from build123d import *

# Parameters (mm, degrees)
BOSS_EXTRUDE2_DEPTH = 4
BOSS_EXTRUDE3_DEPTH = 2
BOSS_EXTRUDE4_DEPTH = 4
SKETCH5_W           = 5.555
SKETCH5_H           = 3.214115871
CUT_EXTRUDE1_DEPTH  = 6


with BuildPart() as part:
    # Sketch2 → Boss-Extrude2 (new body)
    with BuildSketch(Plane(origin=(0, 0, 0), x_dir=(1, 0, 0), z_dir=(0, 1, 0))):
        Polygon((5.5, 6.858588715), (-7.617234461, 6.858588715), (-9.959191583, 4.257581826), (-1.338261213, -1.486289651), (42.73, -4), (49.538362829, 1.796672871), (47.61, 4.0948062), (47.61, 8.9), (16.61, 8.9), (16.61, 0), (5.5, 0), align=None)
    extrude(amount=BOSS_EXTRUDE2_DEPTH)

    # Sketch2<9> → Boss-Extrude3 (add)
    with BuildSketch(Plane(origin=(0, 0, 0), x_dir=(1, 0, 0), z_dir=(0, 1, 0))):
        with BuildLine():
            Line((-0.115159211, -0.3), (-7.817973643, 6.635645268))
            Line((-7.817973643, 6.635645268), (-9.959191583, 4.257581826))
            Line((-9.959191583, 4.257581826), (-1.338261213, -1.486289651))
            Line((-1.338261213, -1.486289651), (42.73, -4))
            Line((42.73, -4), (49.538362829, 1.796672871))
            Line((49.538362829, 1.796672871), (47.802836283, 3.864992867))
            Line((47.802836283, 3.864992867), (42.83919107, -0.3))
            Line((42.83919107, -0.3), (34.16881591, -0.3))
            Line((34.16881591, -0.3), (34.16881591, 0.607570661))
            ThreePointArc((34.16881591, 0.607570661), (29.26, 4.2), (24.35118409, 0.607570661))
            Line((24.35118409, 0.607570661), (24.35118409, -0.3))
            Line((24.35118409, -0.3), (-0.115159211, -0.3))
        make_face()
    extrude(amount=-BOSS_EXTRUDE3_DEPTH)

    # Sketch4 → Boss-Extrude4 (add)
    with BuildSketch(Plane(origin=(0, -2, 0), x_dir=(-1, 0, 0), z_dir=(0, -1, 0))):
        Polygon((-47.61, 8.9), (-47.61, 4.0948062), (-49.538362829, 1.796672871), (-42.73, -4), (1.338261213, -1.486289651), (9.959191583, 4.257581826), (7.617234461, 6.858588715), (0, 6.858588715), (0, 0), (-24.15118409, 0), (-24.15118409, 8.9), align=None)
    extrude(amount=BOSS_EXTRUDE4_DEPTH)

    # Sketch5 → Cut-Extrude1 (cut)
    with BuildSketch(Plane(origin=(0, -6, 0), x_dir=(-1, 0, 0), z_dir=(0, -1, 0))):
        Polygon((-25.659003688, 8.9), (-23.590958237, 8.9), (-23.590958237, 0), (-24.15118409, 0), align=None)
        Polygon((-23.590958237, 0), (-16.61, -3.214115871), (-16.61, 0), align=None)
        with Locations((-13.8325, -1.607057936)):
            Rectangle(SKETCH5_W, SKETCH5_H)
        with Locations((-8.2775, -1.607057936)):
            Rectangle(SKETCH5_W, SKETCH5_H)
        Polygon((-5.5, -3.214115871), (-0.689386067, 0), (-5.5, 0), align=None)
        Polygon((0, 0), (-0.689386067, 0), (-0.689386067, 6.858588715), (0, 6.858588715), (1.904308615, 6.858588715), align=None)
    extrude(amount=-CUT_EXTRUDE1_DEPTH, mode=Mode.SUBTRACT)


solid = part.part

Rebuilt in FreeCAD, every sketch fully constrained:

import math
import FreeCAD as App
import Part
import Sketcher

V = App.Vector
Q = App.Units.Quantity

doc = App.newDocument("Part")
body = doc.addObject("PartDesign::Body", "Body")

# Sketch on XZ plane
sketch1 = body.newObject("Sketcher::SketchObject", "Sketch")
sketch1.AttachmentSupport = (doc.getObject("XZ_Plane"), [""])
sketch1.MapMode = "FlatFace"
sketch1.addGeometry(Part.LineSegment(V(5.5, -6.9, 0), V(-7.6, -6.9, 0)), False)
sketch1.addGeometry(Part.LineSegment(V(-7.6, -6.9, 0), V(-10, -4.3, 0)), False)
sketch1.addGeometry(Part.LineSegment(V(-10, -4.3, 0), V(-1.3, 1.5, 0)), False)
sketch1.addGeometry(Part.LineSegment(V(-1.3, 1.5, 0), V(42.7, 4, 0)), False)
sketch1.addGeometry(Part.LineSegment(V(42.7, 4, 0), V(49.5, -1.8, 0)), False)
sketch1.addGeometry(Part.LineSegment(V(49.5, -1.8, 0), V(47.6, -4.1, 0)), False)
sketch1.addGeometry(Part.LineSegment(V(47.6, -4.1, 0), V(47.6, -8.9, 0)), False)
sketch1.addGeometry(Part.LineSegment(V(47.6, -8.9, 0), V(16.6, -8.9, 0)), False)
sketch1.addGeometry(Part.LineSegment(V(16.6, -8.9, 0), V(16.6, 0, 0)), False)
sketch1.addGeometry(Part.LineSegment(V(16.6, 0, 0), V(5.5, 0, 0)), False)
sketch1.addGeometry(Part.LineSegment(V(5.5, 0, 0), V(5.5, -6.9, 0)), False)
sketch1.addConstraint(Sketcher.Constraint("Coincident", 0, 2, 1, 1))
sketch1.addConstraint(Sketcher.Constraint("Coincident", 1, 2, 2, 1))
sketch1.addConstraint(Sketcher.Constraint("Coincident", 2, 2, 3, 1))
sketch1.addConstraint(Sketcher.Constraint("Coincident", 3, 2, 4, 1))
sketch1.addConstraint(Sketcher.Constraint("Coincident", 4, 2, 5, 1))
sketch1.addConstraint(Sketcher.Constraint("Coincident", 5, 2, 6, 1))
sketch1.addConstraint(Sketcher.Constraint("Coincident", 6, 2, 7, 1))
sketch1.addConstraint(Sketcher.Constraint("Coincident", 7, 2, 8, 1))
sketch1.addConstraint(Sketcher.Constraint("Coincident", 8, 2, 9, 1))
sketch1.addConstraint(Sketcher.Constraint("Coincident", 9, 2, 10, 1))
sketch1.addConstraint(Sketcher.Constraint("Coincident", 10, 2, 0, 1))
sketch1.addConstraint(Sketcher.Constraint("Horizontal", 0))
sketch1.addConstraint(Sketcher.Constraint("Vertical", 6))
sketch1.addConstraint(Sketcher.Constraint("Horizontal", 7))
sketch1.addConstraint(Sketcher.Constraint("Vertical", 8))
sketch1.addConstraint(Sketcher.Constraint("Horizontal", 9))
sketch1.addConstraint(Sketcher.Constraint("Vertical", 10))
sketch1.addConstraint(Sketcher.Constraint("PointOnObject", 8, 2, -1))
sketch1.addConstraint(Sketcher.Constraint("DistanceX", 7, 2, 7, 1, 31.0))
sketch1.addConstraint(Sketcher.Constraint("Angle", 1, Q("132 deg")))
sketch1.addConstraint(Sketcher.Constraint("Angle", 5, Q("-130 deg")))
sketch1.addConstraint(Sketcher.Constraint("Distance", 5, 3.0))
sketch1.addConstraint(Sketcher.Constraint("DistanceY", 8, 1, 8, 2, 8.9))
sketch1.addConstraint(Sketcher.Constraint("DistanceY", -1, 1, 3, 2, 4.0))
sketch1.addConstraint(Sketcher.Constraint("Distance", 1, 3.5))
sketch1.addConstraint(Sketcher.Constraint("DistanceX", 9, 2, 9, 1, 11.11))
sketch1.addConstraint(Sketcher.Constraint("DistanceX", -1, 1, 9, 2, 5.5))
sketch1.addConstraint(Sketcher.Constraint("DistanceX", -1, 1, 3, 2, 42.73))
sketch1.addConstraint(Sketcher.Constraint("DistanceY", 10, 2, 10, 1, 6.858589))
sketch1.addConstraint(Sketcher.Constraint("Distance", 4, 8.941768))
sketch1.addConstraint(Sketcher.Constraint("DistanceX", 0, 2, 0, 1, 13.117234))
sketch1.addConstraint(Sketcher.Constraint("DistanceX", 2, 2, -1, 1, 1.338261))
sketch1.addConstraint(Sketcher.Constraint("DistanceY", -1, 1, 2, 2, 1.48629))
pad1 = body.newObject("PartDesign::Pad", "Pad")
pad1.Profile = sketch1
pad1.Length = 4
pad1.Reversed = True

# Sketch on XZ plane
sketch2 = body.newObject("Sketcher::SketchObject", "Sketch001")
sketch2.AttachmentSupport = (doc.getObject("XZ_Plane"), [""])
sketch2.MapMode = "FlatFace"
sketch2.addGeometry(Part.LineSegment(V(-0.1, 0.3, 0), V(-7.8, -6.6, 0)), False)
sketch2.addGeometry(Part.LineSegment(V(-7.8, -6.6, 0), V(-10, -4.3, 0)), False)
sketch2.addGeometry(Part.LineSegment(V(-10, -4.3, 0), V(-1.3, 1.5, 0)), False)
sketch2.addGeometry(Part.LineSegment(V(-1.3, 1.5, 0), V(42.7, 4, 0)), False)
sketch2.addGeometry(Part.LineSegment(V(42.7, 4, 0), V(49.5, -1.8, 0)), False)
sketch2.addGeometry(Part.LineSegment(V(49.5, -1.8, 0), V(47.8, -3.9, 0)), False)
sketch2.addGeometry(Part.LineSegment(V(47.8, -3.9, 0), V(42.8, 0.3, 0)), False)
sketch2.addGeometry(Part.LineSegment(V(42.8, 0.3, 0), V(34.2, 0.3, 0)), False)
sketch2.addGeometry(Part.LineSegment(V(34.2, 0.3, 0), V(34.2, -0.6, 0)), False)
sketch2.addGeometry(Part.ArcOfCircle(Part.Circle(V(29.3, 0.9, 0), V(0, 0, 1), 5.2), math.radians(-162), math.radians(-18)), False)
sketch2.addGeometry(Part.LineSegment(V(24.4, -0.6, 0), V(24.4, 0.3, 0)), False)
sketch2.addGeometry(Part.LineSegment(V(24.4, 0.3, 0), V(-0.1, 0.3, 0)), False)
sketch2.addConstraint(Sketcher.Constraint("Coincident", 0, 2, 1, 1))
sketch2.addConstraint(Sketcher.Constraint("Coincident", 1, 2, 2, 1))
sketch2.addConstraint(Sketcher.Constraint("Coincident", 2, 2, 3, 1))
sketch2.addConstraint(Sketcher.Constraint("Coincident", 3, 2, 4, 1))
sketch2.addConstraint(Sketcher.Constraint("Coincident", 4, 2, 5, 1))
sketch2.addConstraint(Sketcher.Constraint("Coincident", 5, 2, 6, 1))
sketch2.addConstraint(Sketcher.Constraint("Coincident", 6, 2, 7, 1))
sketch2.addConstraint(Sketcher.Constraint("Coincident", 7, 2, 8, 1))
sketch2.addConstraint(Sketcher.Constraint("Coincident", 8, 2, 9, 2))
sketch2.addConstraint(Sketcher.Constraint("Coincident", 9, 1, 10, 1))
sketch2.addConstraint(Sketcher.Constraint("Coincident", 10, 2, 11, 1))
sketch2.addConstraint(Sketcher.Constraint("Coincident", 11, 2, 0, 1))
sketch2.addConstraint(Sketcher.Constraint("Horizontal", 7))
sketch2.addConstraint(Sketcher.Constraint("Vertical", 8))
sketch2.addConstraint(Sketcher.Constraint("Vertical", 10))
sketch2.addConstraint(Sketcher.Constraint("Horizontal", 11))
sketch2.addConstraint(Sketcher.Constraint("Perpendicular", 0, 1))
sketch2.addConstraint(Sketcher.Constraint("Perpendicular", 5, 6))
sketch2.addConstraint(Sketcher.Constraint("Horizontal", 8, 2, 9, 1))
sketch2.addConstraint(Sketcher.Constraint("Horizontal", 7, 2, 10, 2))
sketch2.addConstraint(Sketcher.Constraint("Angle", 0, Q("-138 deg")))
sketch2.addConstraint(Sketcher.Constraint("Angle", 5, Q("-130 deg")))
sketch2.addConstraint(Sketcher.Constraint("Radius", 9, 5.15))
sketch2.addConstraint(Sketcher.Constraint("DistanceY", -1, 1, 3, 2, 4.0))
sketch2.addConstraint(Sketcher.Constraint("Distance", 1, 3.2))
sketch2.addConstraint(Sketcher.Constraint("Distance", 5, 2.7))
sketch2.addConstraint(Sketcher.Constraint("DistanceY", -1, 1, 6, 2, 0.3))
sketch2.addConstraint(Sketcher.Constraint("DistanceX", -1, 1, 9, 3, 29.26))
sketch2.addConstraint(Sketcher.Constraint("DistanceY", -1, 1, 9, 3, 0.95))
sketch2.addConstraint(Sketcher.Constraint("DistanceX", -1, 1, 3, 2, 42.73))
sketch2.addConstraint(Sketcher.Constraint("DistanceY", 8, 2, 8, 1, 0.907571))
sketch2.addConstraint(Sketcher.Constraint("Distance", 0, 10.365159))
sketch2.addConstraint(Sketcher.Constraint("Distance", 4, 8.941768))
sketch2.addConstraint(Sketcher.Constraint("Distance", 6, 6.479579))
sketch2.addConstraint(Sketcher.Constraint("DistanceX", 11, 2, 11, 1, 24.466343))
sketch2.addConstraint(Sketcher.Constraint("DistanceX", 2, 2, -1, 1, 1.338261))
sketch2.addConstraint(Sketcher.Constraint("DistanceY", -1, 1, 2, 2, 1.48629))
pad2 = body.newObject("PartDesign::Pad", "Pad001")
pad2.Profile = sketch2
pad2.Length = 2

# Sketch on XZ plane
sketch3 = body.newObject("Sketcher::SketchObject", "Sketch002")
sketch3.AttachmentSupport = (doc.getObject("XZ_Plane"), [""])
sketch3.MapMode = "FlatFace"
sketch3.AttachmentOffset = App.Placement(V(0, 0, 2), App.Rotation())
sketch3.addGeometry(Part.LineSegment(V(47.6, -8.9, 0), V(47.6, -4.1, 0)), False)
sketch3.addGeometry(Part.LineSegment(V(47.6, -4.1, 0), V(49.5, -1.8, 0)), False)
sketch3.addGeometry(Part.LineSegment(V(49.5, -1.8, 0), V(42.7, 4, 0)), False)
sketch3.addGeometry(Part.LineSegment(V(42.7, 4, 0), V(-1.3, 1.5, 0)), False)
sketch3.addGeometry(Part.LineSegment(V(-1.3, 1.5, 0), V(-10, -4.3, 0)), False)
sketch3.addGeometry(Part.LineSegment(V(-10, -4.3, 0), V(-7.6, -6.9, 0)), False)
sketch3.addGeometry(Part.LineSegment(V(-7.6, -6.9, 0), V(0, -6.9, 0)), False)
sketch3.addGeometry(Part.LineSegment(V(0, -6.9, 0), V(0, 0, 0)), False)
sketch3.addGeometry(Part.LineSegment(V(0, 0, 0), V(24.2, 0, 0)), False)
sketch3.addGeometry(Part.LineSegment(V(24.2, 0, 0), V(24.2, -8.9, 0)), False)
sketch3.addGeometry(Part.LineSegment(V(24.2, -8.9, 0), V(47.6, -8.9, 0)), False)
sketch3.addConstraint(Sketcher.Constraint("Coincident", 0, 2, 1, 1))
sketch3.addConstraint(Sketcher.Constraint("Coincident", 1, 2, 2, 1))
sketch3.addConstraint(Sketcher.Constraint("Coincident", 2, 2, 3, 1))
sketch3.addConstraint(Sketcher.Constraint("Coincident", 3, 2, 4, 1))
sketch3.addConstraint(Sketcher.Constraint("Coincident", 4, 2, 5, 1))
sketch3.addConstraint(Sketcher.Constraint("Coincident", 5, 2, 6, 1))
sketch3.addConstraint(Sketcher.Constraint("Coincident", 6, 2, 7, 1))
sketch3.addConstraint(Sketcher.Constraint("Coincident", 7, 2, 8, 1))
sketch3.addConstraint(Sketcher.Constraint("Coincident", 8, 2, 9, 1))
sketch3.addConstraint(Sketcher.Constraint("Coincident", 9, 2, 10, 1))
sketch3.addConstraint(Sketcher.Constraint("Coincident", 10, 2, 0, 1))
sketch3.addConstraint(Sketcher.Constraint("Vertical", 0))
sketch3.addConstraint(Sketcher.Constraint("Horizontal", 6))
sketch3.addConstraint(Sketcher.Constraint("Vertical", 7))
sketch3.addConstraint(Sketcher.Constraint("Horizontal", 8))
sketch3.addConstraint(Sketcher.Constraint("Vertical", 9))
sketch3.addConstraint(Sketcher.Constraint("Horizontal", 10))
sketch3.addConstraint(Sketcher.Constraint("Coincident", 7, 2, -1, 1))
sketch3.addConstraint(Sketcher.Constraint("Angle", 1, Q("50 deg")))
sketch3.addConstraint(Sketcher.Constraint("Angle", 5, Q("-48 deg")))
sketch3.addConstraint(Sketcher.Constraint("Distance", 1, 3.0))
sketch3.addConstraint(Sketcher.Constraint("DistanceY", 9, 2, 9, 1, 8.9))
sketch3.addConstraint(Sketcher.Constraint("DistanceY", -1, 1, 2, 2, 4.0))
sketch3.addConstraint(Sketcher.Constraint("Distance", 5, 3.5))
sketch3.addConstraint(Sketcher.Constraint("DistanceX", -1, 1, 0, 2, 47.61))
sketch3.addConstraint(Sketcher.Constraint("DistanceX", -1, 1, 2, 2, 42.73))
sketch3.addConstraint(Sketcher.Constraint("DistanceY", 7, 1, 7, 2, 6.858589))
sketch3.addConstraint(Sketcher.Constraint("Distance", 2, 8.941768))
sketch3.addConstraint(Sketcher.Constraint("DistanceX", 6, 1, 6, 2, 7.617234))
sketch3.addConstraint(Sketcher.Constraint("DistanceX", 8, 1, 8, 2, 24.151184))
sketch3.addConstraint(Sketcher.Constraint("DistanceX", 3, 2, -1, 1, 1.338261))
sketch3.addConstraint(Sketcher.Constraint("DistanceY", -1, 1, 3, 2, 1.48629))
pad3 = body.newObject("PartDesign::Pad", "Pad002")
pad3.Profile = sketch3
pad3.Length = 4

# Sketch on XZ plane
sketch4 = body.newObject("Sketcher::SketchObject", "Sketch003")
sketch4.AttachmentSupport = (doc.getObject("XZ_Plane"), [""])
sketch4.MapMode = "FlatFace"
sketch4.AttachmentOffset = App.Placement(V(0, 0, 6), App.Rotation())
sketch4.addGeometry(Part.LineSegment(V(23.6, -8.9, 0), V(25.7, -8.9, 0)), False)
sketch4.addGeometry(Part.LineSegment(V(25.7, -8.9, 0), V(24.2, 0, 0)), False)
sketch4.addGeometry(Part.LineSegment(V(24.2, 0, 0), V(23.6, 0, 0)), False)
sketch4.addGeometry(Part.LineSegment(V(23.6, 0, 0), V(23.6, -8.9, 0)), False)
sketch4.addGeometry(Part.LineSegment(V(23.6, 0, 0), V(16.6, 3.2, 0)), False)
sketch4.addGeometry(Part.LineSegment(V(16.6, 3.2, 0), V(5.5, 3.2, 0)), False)
sketch4.addGeometry(Part.LineSegment(V(5.5, 3.2, 0), V(0.7, 0, 0)), False)
sketch4.addGeometry(Part.LineSegment(V(0.7, 0, 0), V(5.5, 0, 0)), False)
sketch4.addGeometry(Part.LineSegment(V(5.5, 0, 0), V(16.6, 0, 0)), False)
sketch4.addGeometry(Part.LineSegment(V(16.6, 0, 0), V(23.6, 0, 0)), False)
sketch4.addGeometry(Part.LineSegment(V(0.7, 0, 0), V(0, 0, 0)), False)
sketch4.addGeometry(Part.LineSegment(V(0, 0, 0), V(-1.9, -6.9, 0)), False)
sketch4.addGeometry(Part.LineSegment(V(-1.9, -6.9, 0), V(0.7, -6.9, 0)), False)
sketch4.addGeometry(Part.LineSegment(V(0.7, -6.9, 0), V(0.7, 0, 0)), False)
sketch4.addConstraint(Sketcher.Constraint("Coincident", 0, 2, 1, 1))
sketch4.addConstraint(Sketcher.Constraint("Coincident", 1, 2, 2, 1))
sketch4.addConstraint(Sketcher.Constraint("Coincident", 2, 2, 3, 1))
sketch4.addConstraint(Sketcher.Constraint("Coincident", 3, 2, 0, 1))
sketch4.addConstraint(Sketcher.Constraint("Coincident", 4, 2, 5, 1))
sketch4.addConstraint(Sketcher.Constraint("Coincident", 5, 2, 6, 1))
sketch4.addConstraint(Sketcher.Constraint("Coincident", 6, 2, 7, 1))
sketch4.addConstraint(Sketcher.Constraint("Coincident", 7, 2, 8, 1))
sketch4.addConstraint(Sketcher.Constraint("Coincident", 8, 2, 9, 1))
sketch4.addConstraint(Sketcher.Constraint("Coincident", 9, 2, 4, 1))
sketch4.addConstraint(Sketcher.Constraint("Coincident", 10, 2, 11, 1))
sketch4.addConstraint(Sketcher.Constraint("Coincident", 11, 2, 12, 1))
sketch4.addConstraint(Sketcher.Constraint("Coincident", 12, 2, 13, 1))
sketch4.addConstraint(Sketcher.Constraint("Coincident", 13, 2, 10, 1))
sketch4.addConstraint(Sketcher.Constraint("Horizontal", 0))
sketch4.addConstraint(Sketcher.Constraint("Horizontal", 2))
sketch4.addConstraint(Sketcher.Constraint("Vertical", 3))
sketch4.addConstraint(Sketcher.Constraint("Horizontal", 5))
sketch4.addConstraint(Sketcher.Constraint("Horizontal", 7))
sketch4.addConstraint(Sketcher.Constraint("Horizontal", 8))
sketch4.addConstraint(Sketcher.Constraint("Horizontal", 9))
sketch4.addConstraint(Sketcher.Constraint("Horizontal", 10))
sketch4.addConstraint(Sketcher.Constraint("Horizontal", 12))
sketch4.addConstraint(Sketcher.Constraint("Vertical", 13))
sketch4.addConstraint(Sketcher.Constraint("Coincident", 10, 2, -1, 1))
sketch4.addConstraint(Sketcher.Constraint("Coincident", 9, 2, 2, 2))
sketch4.addConstraint(Sketcher.Constraint("Coincident", 13, 2, 6, 2))
sketch4.addConstraint(Sketcher.Constraint("Vertical", 5, 2, 7, 2))
sketch4.addConstraint(Sketcher.Constraint("Vertical", 4, 2, 8, 2))
sketch4.addConstraint(Sketcher.Constraint("DistanceY", 3, 2, 3, 1, 8.9))
sketch4.addConstraint(Sketcher.Constraint("DistanceX", 5, 2, 5, 1, 11.11))
sketch4.addConstraint(Sketcher.Constraint("DistanceX", -1, 1, 5, 2, 5.5))
sketch4.addConstraint(Sketcher.Constraint("DistanceX", 9, 1, 9, 2, 6.980958))
sketch4.addConstraint(Sketcher.Constraint("DistanceY", 13, 1, 13, 2, 6.858589))
sketch4.addConstraint(Sketcher.Constraint("DistanceX", 6, 2, 1, 2, 23.461798))
sketch4.addConstraint(Sketcher.Constraint("Distance", 4, 7.685331))
sketch4.addConstraint(Sketcher.Constraint("Distance", 11, 7.11805))
sketch4.addConstraint(Sketcher.Constraint("DistanceX", 0, 1, 0, 2, 2.068045))
sketch4.addConstraint(Sketcher.Constraint("DistanceX", 2, 2, 2, 1, 0.560226))
pocket1 = body.newObject("PartDesign::Pocket", "Pocket")
pocket1.Profile = sketch4
pocket1.Length = 6

doc.recompute()
